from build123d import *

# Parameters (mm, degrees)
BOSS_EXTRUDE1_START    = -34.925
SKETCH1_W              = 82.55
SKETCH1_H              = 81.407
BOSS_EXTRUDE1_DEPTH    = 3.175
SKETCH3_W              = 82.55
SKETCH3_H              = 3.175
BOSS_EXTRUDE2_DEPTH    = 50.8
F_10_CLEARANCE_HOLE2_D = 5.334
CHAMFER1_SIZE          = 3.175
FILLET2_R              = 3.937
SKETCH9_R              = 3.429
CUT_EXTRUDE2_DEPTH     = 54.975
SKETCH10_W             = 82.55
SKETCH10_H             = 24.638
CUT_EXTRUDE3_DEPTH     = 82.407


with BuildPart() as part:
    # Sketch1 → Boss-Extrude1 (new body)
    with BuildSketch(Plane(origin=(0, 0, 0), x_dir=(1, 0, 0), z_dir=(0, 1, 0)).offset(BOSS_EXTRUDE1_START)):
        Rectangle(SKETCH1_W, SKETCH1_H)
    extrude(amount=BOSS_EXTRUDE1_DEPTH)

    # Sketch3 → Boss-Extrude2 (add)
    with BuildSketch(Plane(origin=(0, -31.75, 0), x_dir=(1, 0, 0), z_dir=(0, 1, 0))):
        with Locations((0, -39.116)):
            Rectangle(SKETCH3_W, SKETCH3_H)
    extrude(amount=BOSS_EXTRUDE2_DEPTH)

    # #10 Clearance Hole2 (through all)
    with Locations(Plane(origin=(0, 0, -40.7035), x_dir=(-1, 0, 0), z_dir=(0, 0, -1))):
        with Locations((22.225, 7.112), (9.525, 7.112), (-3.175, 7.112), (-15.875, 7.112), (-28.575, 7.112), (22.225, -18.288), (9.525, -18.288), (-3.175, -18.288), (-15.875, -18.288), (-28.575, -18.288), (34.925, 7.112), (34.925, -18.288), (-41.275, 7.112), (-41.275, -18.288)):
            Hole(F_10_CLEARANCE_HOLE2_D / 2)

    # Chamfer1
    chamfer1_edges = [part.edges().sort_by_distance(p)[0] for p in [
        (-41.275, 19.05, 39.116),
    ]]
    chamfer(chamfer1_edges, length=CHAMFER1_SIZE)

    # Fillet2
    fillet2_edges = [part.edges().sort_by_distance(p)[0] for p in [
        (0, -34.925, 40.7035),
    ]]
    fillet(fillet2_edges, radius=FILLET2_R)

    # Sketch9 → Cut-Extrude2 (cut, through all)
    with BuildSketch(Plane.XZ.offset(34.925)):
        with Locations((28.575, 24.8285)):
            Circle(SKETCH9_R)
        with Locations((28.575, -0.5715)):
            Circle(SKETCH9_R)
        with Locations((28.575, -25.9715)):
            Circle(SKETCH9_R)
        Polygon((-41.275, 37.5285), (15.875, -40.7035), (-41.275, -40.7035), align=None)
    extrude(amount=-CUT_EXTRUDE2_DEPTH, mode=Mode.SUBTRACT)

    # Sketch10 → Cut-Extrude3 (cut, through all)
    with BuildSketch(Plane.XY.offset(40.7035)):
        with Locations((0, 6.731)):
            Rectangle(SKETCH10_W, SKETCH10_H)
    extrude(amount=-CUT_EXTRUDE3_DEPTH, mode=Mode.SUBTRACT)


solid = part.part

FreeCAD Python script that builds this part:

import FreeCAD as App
import Part
import Sketcher
Q = App.Units.Quantity


def edges_at(feature, points):
    """Names of the edges that pass closest to the given points."""
    edges = feature.Shape.Edges
    near = lambda p: min(range(len(edges)), key=lambda i: edges[i].distToShape(Part.Vertex(*p))[0])
    return sorted({f"Edge{near(p) + 1}" for p in points})


def add_polygon(sketch, points):
    """Adds a closed chain of lines whose ends are joined by coincident constraints."""
    first, n = sketch.GeometryCount, len(points)
    for a, b in zip(points, points[1:] + points[:1]):
        sketch.addGeometry(Part.LineSegment(App.Vector(*a, 0), App.Vector(*b, 0)), False)
    for i in range(n):
        sketch.addConstraint(Sketcher.Constraint("Coincident", first + i, 2, first + (i + 1) % n, 1))

doc = App.newDocument("Part")
body = doc.addObject("PartDesign::Body", "Body")

sketch1 = body.newObject("Sketcher::SketchObject", "Sketch")
sketch1.AttachmentSupport = (doc.getObject("XZ_Plane"), [""])
sketch1.MapMode = "FlatFace"
sketch1.AttachmentOffset = App.Placement(App.Vector(0, 0, 1.375 * 25.4), App.Rotation())
add_polygon(sketch1, [(-41.275, -40.7035), (-41.275, 40.7035), (41.275, 40.7035), (41.275, -40.7035)])
sketch1.addConstraint(Sketcher.Constraint("Vertical", 0))
sketch1.addConstraint(Sketcher.Constraint("Horizontal", 1))
sketch1.addConstraint(Sketcher.Constraint("Vertical", 2))
sketch1.addConstraint(Sketcher.Constraint("Horizontal", 3))
sketch1.addConstraint(Sketcher.Constraint("Symmetric", 0, 2, 2, 2, -1, 1))
sketch1.addConstraint(Sketcher.Constraint("DistanceX", 1, 1, 1, 2, Q("3.25 in")))
sketch1.addConstraint(Sketcher.Constraint("DistanceY", 0, 1, 0, 2, Q("3.205 in")))
pad1 = body.newObject("PartDesign::Pad", "Pad")
pad1.Profile = sketch1
pad1.Length = Q("0.125 in")
pad1.Reversed = True

sketch2 = body.newObject("Sketcher::SketchObject", "Sketch001")
sketch2.AttachmentSupport = (doc.getObject("XZ_Plane"), [""])
sketch2.MapMode = "FlatFace"
sketch2.AttachmentOffset = App.Placement(App.Vector(0, 0, 1.25 * 25.4), App.Rotation())
add_polygon(sketch2, [(-41.275, 37.5285), (-41.275, 40.7035), (41.275, 40.7035), (41.275, 37.5285)])
sketch2.addConstraint(Sketcher.Constraint("Vertical", 0))
sketch2.addConstraint(Sketcher.Constraint("Horizontal", 1))
sketch2.addConstraint(Sketcher.Constraint("Vertical", 2))
sketch2.addConstraint(Sketcher.Constraint("Horizontal", 3))
sketch2.addConstraint(Sketcher.Constraint("DistanceX", 1, 1, 1, 2, Q("3.25 in")))
sketch2.addConstraint(Sketcher.Constraint("DistanceY", 0, 1, 0, 2, Q("0.125 in")))
sketch2.addConstraint(Sketcher.Constraint("DistanceX", 0, 2, -1, 1, Q("1.625 in")))
sketch2.addConstraint(Sketcher.Constraint("DistanceY", -1, 1, 0, 2, Q("1.6025 in")))
pad2 = body.newObject("PartDesign::Pad", "Pad001")
pad2.Profile = sketch2
pad2.Length = Q("2 in")
pad2.Reversed = True

sketch3 = body.newObject("Sketcher::SketchObject", "Sketch002")
sketch3.AttachmentSupport = (doc.getObject("XY_Plane"), [""])
sketch3.MapMode = "FlatFace"
sketch3.AttachmentOffset = App.Placement(App.Vector(0, 0, -1.6025 * 25.4), App.Rotation())
sketch3.addGeometry(Part.Circle(App.Vector(-22.225, 7.112, 0), App.Vector(0, 0, 1), 2.667), False)
sketch3.addGeometry(Part.Circle(App.Vector(-9.525, 7.112, 0), App.Vector(0, 0, 1), 2.667), False)
sketch3.addGeometry(Part.Circle(App.Vector(3.175, 7.112, 0), App.Vector(0, 0, 1), 2.667), False)
sketch3.addGeometry(Part.Circle(App.Vector(15.875, 7.112, 0), App.Vector(0, 0, 1), 2.667), False)
sketch3.addGeometry(Part.Circle(App.Vector(28.575, 7.112, 0), App.Vector(0, 0, 1), 2.667), False)
sketch3.addGeometry(Part.Circle(App.Vector(-22.225, -18.288, 0), App.Vector(0, 0, 1), 2.667), False)
sketch3.addGeometry(Part.Circle(App.Vector(-9.525, -18.288, 0), App.Vector(0, 0, 1), 2.667), False)
sketch3.addGeometry(Part.Circle(App.Vector(3.175, -18.288, 0), App.Vector(0, 0, 1), 2.667), False)
sketch3.addGeometry(Part.Circle(App.Vector(15.875, -18.288, 0), App.Vector(0, 0, 1), 2.667), False)
sketch3.addGeometry(Part.Circle(App.Vector(28.575, -18.288, 0), App.Vector(0, 0, 1), 2.667), False)
sketch3.addGeometry(Part.Circle(App.Vector(-34.925, 7.112, 0), App.Vector(0, 0, 1), 2.667), False)
sketch3.addGeometry(Part.Circle(App.Vector(-34.925, -18.288, 0), App.Vector(0, 0, 1), 2.667), False)
sketch3.addGeometry(Part.Circle(App.Vector(41.275, 7.112, 0), App.Vector(0, 0, 1), 2.667), False)
sketch3.addGeometry(Part.Circle(App.Vector(41.275, -18.288, 0), App.Vector(0, 0, 1), 2.667), False)
sketch3.addConstraint(Sketcher.Constraint("Equal", 0, 1))
sketch3.addConstraint(Sketcher.Constraint("Equal", 1, 2))
sketch3.addConstraint(Sketcher.Constraint("Equal", 2, 3))
sketch3.addConstraint(Sketcher.Constraint("Equal", 3, 4))
sketch3.addConstraint(Sketcher.Constraint("Equal", 4, 5))
sketch3.addConstraint(Sketcher.Constraint("Equal", 5, 6))
sketch3.addConstraint(Sketcher.Constraint("Equal", 6, 7))
sketch3.addConstraint(Sketcher.Constraint("Equal", 7, 8))
sketch3.addConstraint(Sketcher.Constraint("Equal", 8, 9))
sketch3.addConstraint(Sketcher.Constraint("Equal", 9, 10))
sketch3.addConstraint(Sketcher.Constraint("Equal", 10, 11))
sketch3.addConstraint(Sketcher.Constraint("Equal", 11, 12))
sketch3.addConstraint(Sketcher.Constraint("Equal", 12, 13))
sketch3.addConstraint(Sketcher.Constraint("Horizontal", 0, 3, 1, 3))
sketch3.addConstraint(Sketcher.Constraint("Horizontal", 1, 3, 2, 3))
sketch3.addConstraint(Sketcher.Constraint("Horizontal", 2, 3, 3, 3))
sketch3.addConstraint(Sketcher.Constraint("Horizontal", 3, 3, 4, 3))
sketch3.addConstraint(Sketcher.Constraint("Horizontal", 5, 3, 6, 3))
sketch3.addConstraint(Sketcher.Constraint("Horizontal", 6, 3, 7, 3))
sketch3.addConstraint(Sketcher.Constraint("Horizontal", 7, 3, 8, 3))
sketch3.addConstraint(Sketcher.Constraint("Horizontal", 8, 3, 9, 3))
sketch3.addConstraint(Sketcher.Constraint("Horizontal", 4, 3, 10, 3))
sketch3.addConstraint(Sketcher.Constraint("Horizontal", 9, 3, 11, 3))
sketch3.addConstraint(Sketcher.Constraint("Horizontal", 10, 3, 12, 3))
sketch3.addConstraint(Sketcher.Constraint("Horizontal", 11, 3, 13, 3))
sketch3.addConstraint(Sketcher.Constraint("Vertical", 0, 3, 5, 3))
sketch3.addConstraint(Sketcher.Constraint("Vertical", 1, 3, 6, 3))
sketch3.addConstraint(Sketcher.Constraint("Vertical", 2, 3, 7, 3))
sketch3.addConstraint(Sketcher.Constraint("Vertical", 3, 3, 8, 3))
sketch3.addConstraint(Sketcher.Constraint("Vertical", 4, 3, 9, 3))
sketch3.addConstraint(Sketcher.Constraint("Vertical", 10, 3, 11, 3))
sketch3.addConstraint(Sketcher.Constraint("Vertical", 12, 3, 13, 3))
sketch3.addConstraint(Sketcher.Constraint("Diameter", 0, Q("0.21 in")))
sketch3.addConstraint(Sketcher.Constraint("DistanceX", 0, 3, 2, 3, Q("1 in")))
sketch3.addConstraint(Sketcher.Constraint("DistanceX", 1, 3, 3, 3, Q("1 in")))
sketch3.addConstraint(Sketcher.Constraint("DistanceX", 2, 3, 4, 3, Q("1 in")))
sketch3.addConstraint(Sketcher.Constraint("DistanceY", 5, 3, 0, 3, Q("1 in")))
sketch3.addConstraint(Sketcher.Constraint("DistanceX", 10, 3, 1, 3, Q("1 in")))
sketch3.addConstraint(Sketcher.Constraint("DistanceX", 3, 3, 12, 3, Q("1 in")))
sketch3.addConstraint(Sketcher.Constraint("DistanceX", 0, 3, 1, 3, Q("0.5 in")))
sketch3.addConstraint(Sketcher.Constraint("DistanceY", -1, 1, 0, 3, Q("0.28 in")))
sketch3.addConstraint(Sketcher.Constraint("DistanceX", 0, 3, -1, 1, Q("0.875 in")))
doc.recompute()
hole = body.newObject("PartDesign::Hole", "Hole")
hole.Profile = sketch3
hole.ThreadType = "None"
hole.Diameter = Q("0.21 in")
hole.DepthType = "ThroughAll"
hole.Reversed = True
doc.recompute()

chamfer = body.newObject("PartDesign::Chamfer", "Chamfer")
chamfer.Base = (hole, edges_at(hole, [(-41.275, 19.05, 39.116)]))
chamfer.Size = Q("0.125 in")
doc.recompute()

fillet = body.newObject("PartDesign::Fillet", "Fillet")
fillet.Base = (chamfer, edges_at(chamfer, [(0, -34.925, 40.703)]))
fillet.Radius = Q("0.155 in")

sketch4 = body.newObject("Sketcher::SketchObject", "Sketch003")
sketch4.AttachmentSupport = (doc.getObject("XZ_Plane"), [""])
sketch4.MapMode = "FlatFace"
sketch4.AttachmentOffset = App.Placement(App.Vector(0, 0, 1.375 * 25.4), App.Rotation())
sketch4.addGeometry(Part.Circle(App.Vector(28.575, 24.8285, 0), App.Vector(0, 0, 1), 3.429), False)
sketch4.addGeometry(Part.Circle(App.Vector(28.575, -0.5715, 0), App.Vector(0, 0, 1), 3.429), False)
sketch4.addGeometry(Part.Circle(App.Vector(28.575, -25.9715, 0), App.Vector(0, 0, 1), 3.429), False)
add_polygon(sketch4, [(15.875, -40.7035), (-41.275, 37.5285), (-41.275, -40.7035)])
sketch4.addConstraint(Sketcher.Constraint("Vertical", 4))
sketch4.addConstraint(Sketcher.Constraint("Horizontal", 5))
sketch4.addConstraint(Sketcher.Constraint("Equal", 0, 1))
sketch4.addConstraint(Sketcher.Constraint("Equal", 1, 2))
sketch4.addConstraint(Sketcher.Constraint("Vertical", 0, 3, 1, 3))
sketch4.addConstraint(Sketcher.Constraint("Vertical", 1, 3, 2, 3))
sketch4.addConstraint(Sketcher.Constraint("Diameter", 0, Q("0.27 in")))
sketch4.addConstraint(Sketcher.Constraint("DistanceY", 1, 3, 0, 3, Q("1 in")))
sketch4.addConstraint(Sketcher.Constraint("DistanceY", 2, 3, 1, 3, Q("1 in")))
sketch4.addConstraint(Sketcher.Constraint("DistanceX", 5, 1, 5, 2, Q("2.25 in")))
sketch4.addConstraint(Sketcher.Constraint("DistanceY", 4, 2, 4, 1, Q("3.08 in")))
sketch4.addConstraint(Sketcher.Constraint("DistanceY", 0, 3, 3, 2, Q("0.5 in")))
sketch4.addConstraint(Sketcher.Constraint("DistanceX", 5, 2, 2, 3, Q("0.5 in")))
sketch4.addConstraint(Sketcher.Constraint("DistanceX", -1, 1, 0, 3, Q("1.125 in")))
sketch4.addConstraint(Sketcher.Constraint("DistanceY", -1, 1, 0, 3, Q("0.9775 in")))
pocket1 = body.newObject("PartDesign::Pocket", "Pocket")
pocket1.Profile = sketch4
pocket1.Type = "ThroughAll"

sketch5 = body.newObject("Sketcher::SketchObject", "Sketch004")
sketch5.AttachmentSupport = (doc.getObject("XY_Plane"), [""])
sketch5.MapMode = "FlatFace"
sketch5.AttachmentOffset = App.Placement(App.Vector(0, 0, 1.6025 * 25.4), App.Rotation())
add_polygon(sketch5, [(-41.275, 19.05), (-41.275, -5.588), (41.275, -5.588), (41.275, 19.05)])
sketch5.addConstraint(Sketcher.Constraint("Vertical", 0))
sketch5.addConstraint(Sketcher.Constraint("Horizontal", 1))
sketch5.addConstraint(Sketcher.Constraint("Vertical", 2))
sketch5.addConstraint(Sketcher.Constraint("Horizontal", 3))
sketch5.addConstraint(Sketcher.Constraint("DistanceX", 1, 1, 1, 2, Q("3.25 in")))
sketch5.addConstraint(Sketcher.Constraint("DistanceY", 0, 2, 0, 1, Q("0.97 in")))
sketch5.addConstraint(Sketcher.Constraint("DistanceY", 0, 2, -1, 1, Q("0.22 in")))
sketch5.addConstraint(Sketcher.Constraint("DistanceX", 0, 2, -1, 1, Q("1.625 in")))
pocket2 = body.newObject("PartDesign::Pocket", "Pocket001")
pocket2.Profile = sketch5
pocket2.Type = "ThroughAll"

doc.recompute()
